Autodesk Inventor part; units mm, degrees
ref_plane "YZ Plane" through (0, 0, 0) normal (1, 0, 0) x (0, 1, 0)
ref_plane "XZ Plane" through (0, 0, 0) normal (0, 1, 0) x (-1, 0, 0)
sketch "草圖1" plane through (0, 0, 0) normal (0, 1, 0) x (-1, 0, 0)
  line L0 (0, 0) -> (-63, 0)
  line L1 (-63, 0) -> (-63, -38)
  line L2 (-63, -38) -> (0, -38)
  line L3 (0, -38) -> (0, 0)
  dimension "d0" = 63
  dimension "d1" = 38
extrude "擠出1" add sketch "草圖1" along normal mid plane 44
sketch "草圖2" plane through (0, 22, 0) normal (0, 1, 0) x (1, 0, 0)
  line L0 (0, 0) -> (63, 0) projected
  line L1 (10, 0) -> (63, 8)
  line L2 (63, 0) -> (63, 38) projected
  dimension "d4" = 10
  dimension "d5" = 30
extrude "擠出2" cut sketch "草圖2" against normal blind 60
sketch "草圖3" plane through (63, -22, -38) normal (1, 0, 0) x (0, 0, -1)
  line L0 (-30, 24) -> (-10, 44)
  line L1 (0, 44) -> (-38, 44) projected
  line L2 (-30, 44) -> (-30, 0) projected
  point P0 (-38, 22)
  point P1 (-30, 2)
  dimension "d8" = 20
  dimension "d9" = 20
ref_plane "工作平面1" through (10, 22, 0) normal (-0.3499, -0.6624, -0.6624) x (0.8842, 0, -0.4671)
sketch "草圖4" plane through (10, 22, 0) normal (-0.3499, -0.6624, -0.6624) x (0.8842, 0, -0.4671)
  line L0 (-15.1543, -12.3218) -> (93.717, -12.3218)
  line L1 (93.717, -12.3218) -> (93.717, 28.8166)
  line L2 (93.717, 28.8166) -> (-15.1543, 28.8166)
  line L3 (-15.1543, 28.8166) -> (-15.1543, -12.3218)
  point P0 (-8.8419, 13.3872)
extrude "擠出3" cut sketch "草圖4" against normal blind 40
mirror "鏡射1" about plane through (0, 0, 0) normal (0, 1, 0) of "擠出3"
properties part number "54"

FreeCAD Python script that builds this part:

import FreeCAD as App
import Part
import Sketcher

V = App.Vector


def add_polygon(sketch, points):
    """Adds a closed chain of lines whose ends are joined by coincident constraints."""
    first, n = sketch.GeometryCount, len(points)
    for a, b in zip(points, points[1:] + points[:1]):
        sketch.addGeometry(Part.LineSegment(App.Vector(*a, 0), App.Vector(*b, 0)), False)
    for i in range(n):
        sketch.addConstraint(Sketcher.Constraint("Coincident", first + i, 2, first + (i + 1) % n, 1))

doc = App.newDocument("Part")
body = doc.addObject("PartDesign::Body", "Body")

sketch1 = doc.addObject("Sketcher::SketchObject", "Sketch")
body.addObject(sketch1)
sketch1.AttachmentSupport = (doc.XZ_Plane, [""])
sketch1.MapMode = "FlatFace"
add_polygon(sketch1, [(0, -38), (0, 0), (63, 0), (63, -38)])
sketch1.addConstraint(Sketcher.Constraint("Vertical", 0))
sketch1.addConstraint(Sketcher.Constraint("Horizontal", 1))
sketch1.addConstraint(Sketcher.Constraint("Vertical", 2))
sketch1.addConstraint(Sketcher.Constraint("Horizontal", 3))
sketch1.addConstraint(Sketcher.Constraint("Coincident", 0, 2, -1, 1))
sketch1.addConstraint(Sketcher.Constraint("DistanceX", 1, 1, 1, 2, 63.0))
sketch1.addConstraint(Sketcher.Constraint("DistanceY", 0, 1, 0, 2, 38.0))
pad1 = doc.addObject("PartDesign::Pad", "Pad")
body.addObject(pad1)
pad1.Profile = sketch1
pad1.Length = 44
pad1.Midplane = True

sketch2 = doc.addObject("Sketcher::SketchObject", "Sketch001")
body.addObject(sketch2)
sketch2.AttachmentSupport = (doc.XZ_Plane, [""])
sketch2.MapMode = "FlatFace"
sketch2.AttachmentOffset = App.Placement(V(0, 0, -22), App.Rotation())
add_polygon(sketch2, [(63, -8), (10, 0), (63, 0)])
sketch2.addConstraint(Sketcher.Constraint("Horizontal", 1))
sketch2.addConstraint(Sketcher.Constraint("Vertical", 2))
sketch2.addConstraint(Sketcher.Constraint("PointOnObject", 0, 2, -1))
sketch2.addConstraint(Sketcher.Constraint("DistanceX", -1, 1, 0, 2, 10.0))
sketch2.addConstraint(Sketcher.Constraint("DistanceX", 1, 1, 1, 2, 53.0))
sketch2.addConstraint(Sketcher.Constraint("DistanceY", 2, 2, 2, 1, 8.0))
pocket1 = doc.addObject("PartDesign::Pocket", "Pocket")
body.addObject(pocket1)
pocket1.Profile = sketch2
pocket1.Length = 60
pocket1.Reversed = True

sketch3 = doc.addObject("Sketcher::SketchObject", "Sketch002")
body.addObject(sketch3)
sketch3.Placement = App.Placement(V(10, 22, 0), App.Rotation(V(0.884212424, 0.000016865, -0.467084992), V(0.309411746, -0.749143765, 0.585702989), V(-0.349903931, -0.662407442, -0.662407442), "ZXY"))
add_polygon(sketch3, [(-15.1543, 28.8166), (-15.1543, -12.3218), (93.717, -12.3218), (93.717, 28.8166)])
sketch3.addConstraint(Sketcher.Constraint("Vertical", 0))
sketch3.addConstraint(Sketcher.Constraint("Horizontal", 1))
sketch3.addConstraint(Sketcher.Constraint("Vertical", 2))
sketch3.addConstraint(Sketcher.Constraint("Horizontal", 3))
sketch3.addConstraint(Sketcher.Constraint("DistanceX", 1, 1, 1, 2, 108.8713))
sketch3.addConstraint(Sketcher.Constraint("DistanceY", 0, 2, 0, 1, 41.1384))
sketch3.addConstraint(Sketcher.Constraint("DistanceX", -1, 1, 1, 2, 93.717))
sketch3.addConstraint(Sketcher.Constraint("DistanceY", 0, 2, -1, 1, 12.3218))
pocket2 = doc.addObject("PartDesign::Pocket", "Pocket001")
body.addObject(pocket2)
pocket2.Profile = sketch3
pocket2.Length = 40
doc.recompute()

mirrored = doc.addObject("PartDesign::Mirrored", "Mirrored")
body.addObject(mirrored)
mirrored.Originals = [pocket2]
mirrored.MirrorPlane = (doc.XZ_Plane, [""])
body.Tip = mirrored

doc.recompute()
